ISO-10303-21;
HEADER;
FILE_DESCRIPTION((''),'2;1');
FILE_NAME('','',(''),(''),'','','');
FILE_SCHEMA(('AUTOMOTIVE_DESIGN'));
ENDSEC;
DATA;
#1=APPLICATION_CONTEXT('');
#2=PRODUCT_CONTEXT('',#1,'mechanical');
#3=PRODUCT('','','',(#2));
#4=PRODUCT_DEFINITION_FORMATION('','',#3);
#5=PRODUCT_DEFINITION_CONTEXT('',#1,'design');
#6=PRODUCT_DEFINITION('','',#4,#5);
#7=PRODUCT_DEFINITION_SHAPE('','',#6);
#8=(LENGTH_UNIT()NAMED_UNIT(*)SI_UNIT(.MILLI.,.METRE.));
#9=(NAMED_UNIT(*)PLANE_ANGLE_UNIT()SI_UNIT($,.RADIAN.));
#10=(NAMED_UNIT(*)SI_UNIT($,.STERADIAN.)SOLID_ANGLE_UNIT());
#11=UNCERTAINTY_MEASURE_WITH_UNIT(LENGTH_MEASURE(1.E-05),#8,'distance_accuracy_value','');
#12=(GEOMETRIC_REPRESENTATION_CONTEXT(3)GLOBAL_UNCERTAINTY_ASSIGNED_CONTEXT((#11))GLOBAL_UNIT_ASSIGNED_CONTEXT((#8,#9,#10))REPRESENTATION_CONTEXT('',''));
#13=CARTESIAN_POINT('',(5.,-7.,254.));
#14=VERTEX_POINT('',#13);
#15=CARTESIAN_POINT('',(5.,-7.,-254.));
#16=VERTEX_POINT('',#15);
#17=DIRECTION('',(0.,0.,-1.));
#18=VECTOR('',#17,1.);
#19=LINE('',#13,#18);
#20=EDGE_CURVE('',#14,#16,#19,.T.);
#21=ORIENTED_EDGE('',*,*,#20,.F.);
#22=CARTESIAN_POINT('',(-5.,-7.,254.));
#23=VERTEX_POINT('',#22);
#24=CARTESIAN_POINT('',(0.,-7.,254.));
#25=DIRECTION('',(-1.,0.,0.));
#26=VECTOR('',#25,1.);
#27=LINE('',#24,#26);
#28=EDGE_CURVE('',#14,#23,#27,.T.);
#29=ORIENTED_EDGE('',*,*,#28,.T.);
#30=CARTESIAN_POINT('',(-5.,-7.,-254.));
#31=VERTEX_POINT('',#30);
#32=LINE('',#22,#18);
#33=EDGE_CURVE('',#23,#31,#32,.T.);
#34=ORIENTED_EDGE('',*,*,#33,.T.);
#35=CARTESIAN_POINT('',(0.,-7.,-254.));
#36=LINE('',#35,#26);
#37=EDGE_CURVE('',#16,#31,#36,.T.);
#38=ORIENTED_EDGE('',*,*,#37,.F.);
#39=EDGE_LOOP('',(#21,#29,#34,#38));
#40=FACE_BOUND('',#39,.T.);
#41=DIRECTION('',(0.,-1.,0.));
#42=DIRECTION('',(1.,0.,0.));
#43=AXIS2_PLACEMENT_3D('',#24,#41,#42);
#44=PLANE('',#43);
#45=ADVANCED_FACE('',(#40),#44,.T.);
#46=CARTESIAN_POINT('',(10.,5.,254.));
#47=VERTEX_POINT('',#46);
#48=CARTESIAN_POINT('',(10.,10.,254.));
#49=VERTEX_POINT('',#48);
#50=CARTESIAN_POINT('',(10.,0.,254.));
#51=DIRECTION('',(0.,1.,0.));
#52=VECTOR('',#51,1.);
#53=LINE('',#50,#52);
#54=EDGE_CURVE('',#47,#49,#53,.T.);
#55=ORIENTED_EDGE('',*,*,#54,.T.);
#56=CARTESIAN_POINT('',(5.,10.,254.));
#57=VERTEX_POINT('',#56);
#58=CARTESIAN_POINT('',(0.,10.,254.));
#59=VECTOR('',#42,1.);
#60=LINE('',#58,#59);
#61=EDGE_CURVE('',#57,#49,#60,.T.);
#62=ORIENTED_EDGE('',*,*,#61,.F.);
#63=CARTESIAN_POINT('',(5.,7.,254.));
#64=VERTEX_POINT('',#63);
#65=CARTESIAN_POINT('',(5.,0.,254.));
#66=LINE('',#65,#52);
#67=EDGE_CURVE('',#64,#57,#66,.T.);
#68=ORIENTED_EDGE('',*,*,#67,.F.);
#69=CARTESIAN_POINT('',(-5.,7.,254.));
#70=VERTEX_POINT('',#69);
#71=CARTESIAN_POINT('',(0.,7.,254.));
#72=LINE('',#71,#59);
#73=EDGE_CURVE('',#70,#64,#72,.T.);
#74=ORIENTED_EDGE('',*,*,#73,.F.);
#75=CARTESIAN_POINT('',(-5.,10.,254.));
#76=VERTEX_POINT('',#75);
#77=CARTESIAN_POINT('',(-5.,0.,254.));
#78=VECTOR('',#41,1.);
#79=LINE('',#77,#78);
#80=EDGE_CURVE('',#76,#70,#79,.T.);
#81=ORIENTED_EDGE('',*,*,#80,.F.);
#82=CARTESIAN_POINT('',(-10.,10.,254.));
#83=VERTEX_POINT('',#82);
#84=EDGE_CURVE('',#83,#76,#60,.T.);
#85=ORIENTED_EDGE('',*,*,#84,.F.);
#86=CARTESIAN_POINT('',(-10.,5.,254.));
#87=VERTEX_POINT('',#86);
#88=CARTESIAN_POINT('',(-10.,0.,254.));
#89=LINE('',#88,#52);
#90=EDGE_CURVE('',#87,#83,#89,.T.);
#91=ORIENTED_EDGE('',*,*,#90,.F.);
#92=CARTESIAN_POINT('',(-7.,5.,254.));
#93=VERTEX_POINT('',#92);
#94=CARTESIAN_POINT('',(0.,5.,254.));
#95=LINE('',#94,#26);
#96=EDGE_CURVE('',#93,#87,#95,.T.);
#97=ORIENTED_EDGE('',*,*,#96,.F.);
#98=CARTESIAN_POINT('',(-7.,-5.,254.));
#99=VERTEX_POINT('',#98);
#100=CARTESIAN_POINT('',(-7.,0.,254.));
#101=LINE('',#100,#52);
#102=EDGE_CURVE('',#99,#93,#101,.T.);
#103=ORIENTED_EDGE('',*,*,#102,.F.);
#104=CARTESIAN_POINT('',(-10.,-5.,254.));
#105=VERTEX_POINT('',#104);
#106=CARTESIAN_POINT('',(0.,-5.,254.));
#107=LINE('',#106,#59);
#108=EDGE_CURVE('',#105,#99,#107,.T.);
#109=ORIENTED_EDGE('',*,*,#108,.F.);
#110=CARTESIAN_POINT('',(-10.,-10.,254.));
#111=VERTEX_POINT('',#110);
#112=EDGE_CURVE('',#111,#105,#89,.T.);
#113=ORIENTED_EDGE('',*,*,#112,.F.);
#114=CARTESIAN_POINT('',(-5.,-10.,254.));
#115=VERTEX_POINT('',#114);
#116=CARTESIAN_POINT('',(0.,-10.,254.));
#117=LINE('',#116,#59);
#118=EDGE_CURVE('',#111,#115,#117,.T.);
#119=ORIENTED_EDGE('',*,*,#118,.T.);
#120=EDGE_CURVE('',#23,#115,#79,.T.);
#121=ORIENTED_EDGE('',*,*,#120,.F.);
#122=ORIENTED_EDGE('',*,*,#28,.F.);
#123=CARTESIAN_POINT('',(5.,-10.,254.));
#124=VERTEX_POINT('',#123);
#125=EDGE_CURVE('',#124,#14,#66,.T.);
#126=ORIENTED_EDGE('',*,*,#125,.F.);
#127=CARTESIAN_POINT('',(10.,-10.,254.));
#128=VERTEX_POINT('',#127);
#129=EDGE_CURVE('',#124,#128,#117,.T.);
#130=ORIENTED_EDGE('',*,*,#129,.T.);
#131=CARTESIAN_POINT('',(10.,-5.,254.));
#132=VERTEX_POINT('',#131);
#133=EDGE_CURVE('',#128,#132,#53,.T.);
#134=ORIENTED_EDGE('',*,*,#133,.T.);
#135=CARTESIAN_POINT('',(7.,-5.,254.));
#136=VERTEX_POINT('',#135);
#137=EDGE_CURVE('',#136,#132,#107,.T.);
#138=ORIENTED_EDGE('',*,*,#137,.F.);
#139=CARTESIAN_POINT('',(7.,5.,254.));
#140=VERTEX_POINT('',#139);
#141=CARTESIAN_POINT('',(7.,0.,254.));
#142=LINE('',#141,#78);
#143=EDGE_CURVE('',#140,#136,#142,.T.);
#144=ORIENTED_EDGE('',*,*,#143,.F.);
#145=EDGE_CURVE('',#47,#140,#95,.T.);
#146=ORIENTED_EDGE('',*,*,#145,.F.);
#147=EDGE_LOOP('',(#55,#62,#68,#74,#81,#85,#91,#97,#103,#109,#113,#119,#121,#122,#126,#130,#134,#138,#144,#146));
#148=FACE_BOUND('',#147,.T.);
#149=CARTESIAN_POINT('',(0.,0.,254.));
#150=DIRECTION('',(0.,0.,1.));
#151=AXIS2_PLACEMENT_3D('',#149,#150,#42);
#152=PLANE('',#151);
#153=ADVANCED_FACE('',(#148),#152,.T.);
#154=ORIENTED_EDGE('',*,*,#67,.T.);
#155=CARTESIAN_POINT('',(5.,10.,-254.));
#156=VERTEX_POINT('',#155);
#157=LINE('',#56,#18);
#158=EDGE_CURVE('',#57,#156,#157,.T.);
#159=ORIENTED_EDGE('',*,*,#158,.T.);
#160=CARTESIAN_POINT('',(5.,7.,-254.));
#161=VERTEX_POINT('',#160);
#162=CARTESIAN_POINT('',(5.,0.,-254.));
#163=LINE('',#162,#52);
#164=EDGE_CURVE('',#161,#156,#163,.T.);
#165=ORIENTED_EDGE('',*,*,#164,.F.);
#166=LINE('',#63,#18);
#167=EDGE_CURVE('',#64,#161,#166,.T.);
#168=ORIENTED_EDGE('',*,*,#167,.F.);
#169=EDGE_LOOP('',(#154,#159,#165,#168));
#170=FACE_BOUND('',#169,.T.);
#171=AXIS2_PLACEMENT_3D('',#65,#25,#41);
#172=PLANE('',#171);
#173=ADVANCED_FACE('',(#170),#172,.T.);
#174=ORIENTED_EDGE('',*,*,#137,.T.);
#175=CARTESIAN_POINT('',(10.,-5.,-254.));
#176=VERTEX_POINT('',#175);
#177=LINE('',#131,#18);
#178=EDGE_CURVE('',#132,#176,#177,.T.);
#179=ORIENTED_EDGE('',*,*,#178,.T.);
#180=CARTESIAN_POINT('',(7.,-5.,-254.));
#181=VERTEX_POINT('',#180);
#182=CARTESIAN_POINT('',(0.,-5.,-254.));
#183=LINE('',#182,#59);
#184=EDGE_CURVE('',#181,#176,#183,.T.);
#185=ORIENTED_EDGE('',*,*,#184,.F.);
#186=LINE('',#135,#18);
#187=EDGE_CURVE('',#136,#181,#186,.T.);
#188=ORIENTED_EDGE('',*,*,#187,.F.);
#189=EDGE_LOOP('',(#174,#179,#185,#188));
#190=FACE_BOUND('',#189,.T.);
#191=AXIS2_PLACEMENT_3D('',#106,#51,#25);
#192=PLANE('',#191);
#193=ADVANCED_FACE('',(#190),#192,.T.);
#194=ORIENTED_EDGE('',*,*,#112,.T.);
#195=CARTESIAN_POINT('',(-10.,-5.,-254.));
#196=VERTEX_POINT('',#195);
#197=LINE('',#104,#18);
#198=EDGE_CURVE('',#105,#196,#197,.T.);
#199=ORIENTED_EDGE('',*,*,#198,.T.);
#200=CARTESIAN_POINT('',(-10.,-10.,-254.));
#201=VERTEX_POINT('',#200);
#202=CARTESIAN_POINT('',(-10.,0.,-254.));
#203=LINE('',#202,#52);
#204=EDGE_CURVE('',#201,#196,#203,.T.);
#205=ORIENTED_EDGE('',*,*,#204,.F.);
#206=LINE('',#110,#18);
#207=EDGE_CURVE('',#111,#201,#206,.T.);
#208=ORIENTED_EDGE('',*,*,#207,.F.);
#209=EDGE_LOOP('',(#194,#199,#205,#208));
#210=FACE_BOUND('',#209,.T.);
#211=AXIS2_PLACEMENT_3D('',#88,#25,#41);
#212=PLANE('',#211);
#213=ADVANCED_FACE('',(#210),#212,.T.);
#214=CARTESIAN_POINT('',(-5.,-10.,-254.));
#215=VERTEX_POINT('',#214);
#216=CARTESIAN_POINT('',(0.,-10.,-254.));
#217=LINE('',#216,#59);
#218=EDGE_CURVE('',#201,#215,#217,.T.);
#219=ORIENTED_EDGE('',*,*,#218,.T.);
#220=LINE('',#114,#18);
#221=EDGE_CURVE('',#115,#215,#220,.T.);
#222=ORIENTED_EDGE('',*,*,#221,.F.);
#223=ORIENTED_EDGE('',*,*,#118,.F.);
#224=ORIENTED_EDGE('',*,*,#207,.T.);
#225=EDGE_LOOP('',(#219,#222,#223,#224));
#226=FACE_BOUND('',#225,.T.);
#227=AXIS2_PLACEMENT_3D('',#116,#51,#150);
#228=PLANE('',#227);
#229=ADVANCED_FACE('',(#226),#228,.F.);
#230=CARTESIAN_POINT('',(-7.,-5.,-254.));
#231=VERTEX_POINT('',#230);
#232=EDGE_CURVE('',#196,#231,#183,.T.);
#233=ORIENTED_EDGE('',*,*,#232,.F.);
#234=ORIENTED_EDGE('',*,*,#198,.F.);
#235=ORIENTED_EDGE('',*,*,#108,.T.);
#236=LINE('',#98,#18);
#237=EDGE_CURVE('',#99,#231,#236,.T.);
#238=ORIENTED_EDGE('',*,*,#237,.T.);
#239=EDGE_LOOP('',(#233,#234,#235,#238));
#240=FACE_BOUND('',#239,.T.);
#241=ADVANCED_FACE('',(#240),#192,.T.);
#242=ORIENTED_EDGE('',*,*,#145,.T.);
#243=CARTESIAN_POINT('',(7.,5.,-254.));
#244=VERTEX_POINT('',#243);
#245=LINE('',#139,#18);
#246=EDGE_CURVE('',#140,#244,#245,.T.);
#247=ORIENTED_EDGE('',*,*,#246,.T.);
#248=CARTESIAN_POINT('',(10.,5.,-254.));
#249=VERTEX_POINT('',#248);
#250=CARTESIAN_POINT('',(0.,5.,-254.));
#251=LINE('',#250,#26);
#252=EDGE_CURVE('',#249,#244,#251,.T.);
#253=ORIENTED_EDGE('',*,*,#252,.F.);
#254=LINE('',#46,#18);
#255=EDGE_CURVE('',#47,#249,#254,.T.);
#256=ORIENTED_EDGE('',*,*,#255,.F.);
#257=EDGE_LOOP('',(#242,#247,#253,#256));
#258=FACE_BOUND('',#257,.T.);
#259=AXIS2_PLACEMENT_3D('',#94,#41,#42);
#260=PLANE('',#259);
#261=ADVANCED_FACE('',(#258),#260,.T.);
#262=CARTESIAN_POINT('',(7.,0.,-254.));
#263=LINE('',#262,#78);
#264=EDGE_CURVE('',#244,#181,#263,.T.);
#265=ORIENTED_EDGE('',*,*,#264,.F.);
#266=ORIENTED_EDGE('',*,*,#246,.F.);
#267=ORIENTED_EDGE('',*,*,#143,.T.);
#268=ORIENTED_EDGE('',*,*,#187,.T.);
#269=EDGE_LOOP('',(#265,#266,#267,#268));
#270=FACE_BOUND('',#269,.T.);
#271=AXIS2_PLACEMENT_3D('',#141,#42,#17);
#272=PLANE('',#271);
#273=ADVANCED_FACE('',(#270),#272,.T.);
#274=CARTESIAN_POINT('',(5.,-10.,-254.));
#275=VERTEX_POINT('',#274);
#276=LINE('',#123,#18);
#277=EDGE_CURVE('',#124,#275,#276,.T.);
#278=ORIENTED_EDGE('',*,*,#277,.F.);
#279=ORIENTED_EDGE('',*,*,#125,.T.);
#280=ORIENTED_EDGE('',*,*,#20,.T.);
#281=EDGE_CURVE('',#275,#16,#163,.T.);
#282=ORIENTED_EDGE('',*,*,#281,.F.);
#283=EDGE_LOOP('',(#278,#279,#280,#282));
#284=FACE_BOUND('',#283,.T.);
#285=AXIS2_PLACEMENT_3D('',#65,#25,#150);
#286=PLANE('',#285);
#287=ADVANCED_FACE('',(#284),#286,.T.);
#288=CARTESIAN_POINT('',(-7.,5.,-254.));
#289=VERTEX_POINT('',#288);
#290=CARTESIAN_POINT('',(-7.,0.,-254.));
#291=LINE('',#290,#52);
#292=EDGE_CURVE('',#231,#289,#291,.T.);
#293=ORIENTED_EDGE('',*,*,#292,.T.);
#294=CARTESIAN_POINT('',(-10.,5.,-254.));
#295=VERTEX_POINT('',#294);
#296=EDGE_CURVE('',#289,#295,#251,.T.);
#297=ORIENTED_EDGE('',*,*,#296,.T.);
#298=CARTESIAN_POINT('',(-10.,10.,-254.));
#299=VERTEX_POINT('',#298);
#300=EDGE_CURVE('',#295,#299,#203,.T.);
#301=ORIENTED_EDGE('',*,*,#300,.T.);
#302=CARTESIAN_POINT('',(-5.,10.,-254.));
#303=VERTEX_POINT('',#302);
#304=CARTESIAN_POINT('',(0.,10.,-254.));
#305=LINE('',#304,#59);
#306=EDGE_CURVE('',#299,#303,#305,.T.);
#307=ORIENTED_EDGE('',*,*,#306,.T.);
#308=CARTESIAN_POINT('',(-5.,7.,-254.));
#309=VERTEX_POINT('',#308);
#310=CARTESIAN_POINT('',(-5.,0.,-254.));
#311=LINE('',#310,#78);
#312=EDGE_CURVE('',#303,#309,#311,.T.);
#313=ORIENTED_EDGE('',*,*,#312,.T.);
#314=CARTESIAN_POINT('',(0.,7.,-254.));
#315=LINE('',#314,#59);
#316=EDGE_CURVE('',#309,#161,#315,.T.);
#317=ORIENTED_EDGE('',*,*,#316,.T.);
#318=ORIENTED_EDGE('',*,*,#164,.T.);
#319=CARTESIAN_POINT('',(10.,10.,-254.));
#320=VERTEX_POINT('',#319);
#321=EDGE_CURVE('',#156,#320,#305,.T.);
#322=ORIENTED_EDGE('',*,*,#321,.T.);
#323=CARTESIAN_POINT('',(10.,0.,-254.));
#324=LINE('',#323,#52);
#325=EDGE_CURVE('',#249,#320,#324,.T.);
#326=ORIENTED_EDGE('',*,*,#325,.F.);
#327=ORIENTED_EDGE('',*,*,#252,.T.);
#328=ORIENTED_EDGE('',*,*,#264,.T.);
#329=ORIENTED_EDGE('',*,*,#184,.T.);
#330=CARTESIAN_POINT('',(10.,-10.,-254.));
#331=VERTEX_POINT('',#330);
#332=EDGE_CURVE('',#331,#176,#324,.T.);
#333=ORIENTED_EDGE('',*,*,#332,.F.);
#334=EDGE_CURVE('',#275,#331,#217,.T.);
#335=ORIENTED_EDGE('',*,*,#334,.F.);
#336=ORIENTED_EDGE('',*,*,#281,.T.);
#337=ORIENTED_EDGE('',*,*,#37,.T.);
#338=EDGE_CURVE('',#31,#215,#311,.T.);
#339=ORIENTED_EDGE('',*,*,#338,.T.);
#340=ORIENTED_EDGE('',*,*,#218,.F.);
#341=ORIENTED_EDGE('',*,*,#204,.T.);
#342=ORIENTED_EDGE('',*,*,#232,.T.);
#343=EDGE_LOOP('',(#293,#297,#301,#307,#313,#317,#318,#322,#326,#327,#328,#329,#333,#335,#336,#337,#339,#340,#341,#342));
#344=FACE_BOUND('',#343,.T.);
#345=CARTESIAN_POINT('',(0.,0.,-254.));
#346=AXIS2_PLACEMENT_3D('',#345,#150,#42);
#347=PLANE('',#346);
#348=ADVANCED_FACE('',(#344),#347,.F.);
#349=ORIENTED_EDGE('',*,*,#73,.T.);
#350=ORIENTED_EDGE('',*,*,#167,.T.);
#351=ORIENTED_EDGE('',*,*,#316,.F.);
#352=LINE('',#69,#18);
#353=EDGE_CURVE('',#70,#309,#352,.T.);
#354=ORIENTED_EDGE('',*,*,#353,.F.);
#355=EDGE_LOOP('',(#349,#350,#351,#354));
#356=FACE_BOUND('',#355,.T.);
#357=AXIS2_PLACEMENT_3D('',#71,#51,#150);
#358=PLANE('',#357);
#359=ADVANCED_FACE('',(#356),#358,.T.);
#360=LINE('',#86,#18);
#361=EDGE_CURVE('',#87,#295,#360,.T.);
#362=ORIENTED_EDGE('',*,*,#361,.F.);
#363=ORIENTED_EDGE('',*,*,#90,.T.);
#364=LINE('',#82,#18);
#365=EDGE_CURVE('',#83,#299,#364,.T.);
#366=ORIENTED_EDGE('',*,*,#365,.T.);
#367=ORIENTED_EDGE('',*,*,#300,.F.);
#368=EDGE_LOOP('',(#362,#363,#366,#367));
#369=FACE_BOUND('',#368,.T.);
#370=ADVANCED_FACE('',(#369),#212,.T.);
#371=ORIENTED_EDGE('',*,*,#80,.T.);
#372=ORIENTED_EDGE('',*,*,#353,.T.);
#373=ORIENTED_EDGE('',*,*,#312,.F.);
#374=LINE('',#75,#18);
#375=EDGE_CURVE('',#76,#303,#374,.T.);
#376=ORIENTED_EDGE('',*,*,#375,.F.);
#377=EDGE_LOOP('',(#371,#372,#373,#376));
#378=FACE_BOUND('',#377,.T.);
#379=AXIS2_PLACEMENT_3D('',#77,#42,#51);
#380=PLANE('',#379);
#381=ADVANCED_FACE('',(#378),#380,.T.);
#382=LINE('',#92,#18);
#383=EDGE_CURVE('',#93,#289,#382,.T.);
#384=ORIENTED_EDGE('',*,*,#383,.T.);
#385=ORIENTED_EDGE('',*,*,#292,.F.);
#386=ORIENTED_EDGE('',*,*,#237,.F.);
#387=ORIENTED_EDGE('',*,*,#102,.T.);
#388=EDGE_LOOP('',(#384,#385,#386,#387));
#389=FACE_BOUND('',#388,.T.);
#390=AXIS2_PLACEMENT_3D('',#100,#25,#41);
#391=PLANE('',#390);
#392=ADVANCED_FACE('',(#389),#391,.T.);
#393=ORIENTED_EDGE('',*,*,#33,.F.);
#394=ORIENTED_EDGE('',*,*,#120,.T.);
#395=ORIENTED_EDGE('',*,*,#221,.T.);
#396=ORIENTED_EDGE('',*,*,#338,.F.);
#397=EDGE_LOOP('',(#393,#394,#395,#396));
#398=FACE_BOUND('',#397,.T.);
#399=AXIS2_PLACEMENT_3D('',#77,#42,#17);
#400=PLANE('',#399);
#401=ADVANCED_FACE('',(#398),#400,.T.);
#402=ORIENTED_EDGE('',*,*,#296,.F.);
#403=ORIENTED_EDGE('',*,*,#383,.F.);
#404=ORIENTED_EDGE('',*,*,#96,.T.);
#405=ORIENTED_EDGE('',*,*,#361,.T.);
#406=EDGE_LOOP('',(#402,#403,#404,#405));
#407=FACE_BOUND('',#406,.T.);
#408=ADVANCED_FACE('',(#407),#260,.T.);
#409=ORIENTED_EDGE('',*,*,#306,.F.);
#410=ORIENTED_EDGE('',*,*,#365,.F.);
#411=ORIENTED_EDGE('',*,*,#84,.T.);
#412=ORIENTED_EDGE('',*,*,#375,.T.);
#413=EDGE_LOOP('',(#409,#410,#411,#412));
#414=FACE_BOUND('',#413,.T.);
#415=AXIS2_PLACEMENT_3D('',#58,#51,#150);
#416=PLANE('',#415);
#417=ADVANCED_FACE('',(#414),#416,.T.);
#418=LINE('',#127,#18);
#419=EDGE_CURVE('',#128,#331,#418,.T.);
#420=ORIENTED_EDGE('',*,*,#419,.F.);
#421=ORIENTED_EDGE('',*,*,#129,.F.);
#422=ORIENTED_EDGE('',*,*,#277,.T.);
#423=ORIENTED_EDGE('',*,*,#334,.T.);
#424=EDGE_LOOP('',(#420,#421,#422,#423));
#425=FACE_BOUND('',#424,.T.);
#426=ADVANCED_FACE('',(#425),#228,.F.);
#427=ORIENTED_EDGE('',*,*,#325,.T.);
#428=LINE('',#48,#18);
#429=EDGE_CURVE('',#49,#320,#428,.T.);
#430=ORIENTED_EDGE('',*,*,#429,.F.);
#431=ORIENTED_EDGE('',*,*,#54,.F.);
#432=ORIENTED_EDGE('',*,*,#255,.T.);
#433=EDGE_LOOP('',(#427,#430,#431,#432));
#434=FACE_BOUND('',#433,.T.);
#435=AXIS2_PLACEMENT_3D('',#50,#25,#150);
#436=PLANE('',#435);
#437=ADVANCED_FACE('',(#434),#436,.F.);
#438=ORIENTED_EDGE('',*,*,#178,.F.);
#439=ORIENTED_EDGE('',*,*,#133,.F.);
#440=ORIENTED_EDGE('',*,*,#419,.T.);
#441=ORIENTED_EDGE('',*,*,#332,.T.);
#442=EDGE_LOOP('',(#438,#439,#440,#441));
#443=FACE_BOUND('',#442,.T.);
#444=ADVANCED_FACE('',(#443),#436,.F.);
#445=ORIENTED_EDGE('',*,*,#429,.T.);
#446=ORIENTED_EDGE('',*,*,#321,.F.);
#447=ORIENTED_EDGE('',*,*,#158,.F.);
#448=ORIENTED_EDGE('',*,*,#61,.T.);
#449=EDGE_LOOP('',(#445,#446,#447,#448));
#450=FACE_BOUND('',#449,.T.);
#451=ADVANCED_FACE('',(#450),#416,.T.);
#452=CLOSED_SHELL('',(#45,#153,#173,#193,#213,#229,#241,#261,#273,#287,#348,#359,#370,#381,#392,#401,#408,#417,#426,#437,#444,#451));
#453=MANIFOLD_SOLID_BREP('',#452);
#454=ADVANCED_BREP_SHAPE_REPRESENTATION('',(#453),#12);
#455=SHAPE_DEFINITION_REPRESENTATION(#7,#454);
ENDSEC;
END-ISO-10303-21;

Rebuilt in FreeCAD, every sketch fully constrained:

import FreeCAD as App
import Part
import Sketcher

V = App.Vector
Q = App.Units.Quantity


def add_polygon(sketch, points):
    """Adds a closed chain of lines whose ends are joined by coincident constraints."""
    first, n = sketch.GeometryCount, len(points)
    for a, b in zip(points, points[1:] + points[:1]):
        sketch.addGeometry(Part.LineSegment(App.Vector(*a, 0), App.Vector(*b, 0)), False)
    for i in range(n):
        sketch.addConstraint(Sketcher.Constraint("Coincident", first + i, 2, first + (i + 1) % n, 1))

doc = App.newDocument("Part")
body = doc.addObject("PartDesign::Body", "Body")

sketch1 = body.newObject("Sketcher::SketchObject", "Sketch")
sketch1.AttachmentSupport = (doc.getObject("XY_Plane"), [""])
sketch1.MapMode = "FlatFace"
add_polygon(sketch1, [(-5, 7), (-5, 10), (-10, 10), (-10, 5), (-7, 5), (-7, -5), (-10, -5), (-10, -10), (-5, -10), (-5, -7), (5, -7), (5, -10), (10, -10), (10, -5), (7, -5), (7, 5), (10, 5), (10, 10), (5, 10), (5, 7)])
sketch1.addConstraint([
    Sketcher.Constraint("Vertical", 0),
    Sketcher.Constraint("Horizontal", 1),
    Sketcher.Constraint("Vertical", 2),
    Sketcher.Constraint("Horizontal", 3),
    Sketcher.Constraint("Vertical", 4),
    Sketcher.Constraint("Horizontal", 5),
    Sketcher.Constraint("Vertical", 6),
    Sketcher.Constraint("Horizontal", 7),
    Sketcher.Constraint("Vertical", 8),
    Sketcher.Constraint("Horizontal", 9),
    Sketcher.Constraint("Vertical", 10),
    Sketcher.Constraint("Horizontal", 11),
    Sketcher.Constraint("Vertical", 12),
    Sketcher.Constraint("Horizontal", 13),
    Sketcher.Constraint("Vertical", 14),
    Sketcher.Constraint("Horizontal", 15),
    Sketcher.Constraint("Vertical", 16),
    Sketcher.Constraint("Horizontal", 17),
    Sketcher.Constraint("Vertical", 18),
    Sketcher.Constraint("Horizontal", 19),
    Sketcher.Constraint("Symmetric", 0, 2, 10, 2, -1, 1),
    Sketcher.Constraint("Symmetric", 2, 2, 12, 2, -1, 1),
    Sketcher.Constraint("Symmetric", 4, 2, 14, 2, -1, 1),
    Sketcher.Constraint("Symmetric", 6, 2, 16, 2, -1, 1),
    Sketcher.Constraint("Symmetric", 8, 2, 18, 2, -1, 1),
    Sketcher.Constraint("Symmetric", 7, 2, 10, 2, -2),
    Sketcher.Constraint("Symmetric", 5, 2, 12, 2, -2),
    Sketcher.Constraint("Equal", 15, 0),
    Sketcher.Constraint("Equal", 17, 2),
    Sketcher.Constraint("Equal", 19, 4),
    Sketcher.Constraint("DistanceX", 1, 2, 1, 1, Q("5 mm")),
    Sketcher.Constraint("DistanceX", 3, 1, 3, 2, Q("3 mm")),
    Sketcher.Constraint("DistanceX", 9, 1, 9, 2, Q("10 mm")),
])
pad1 = body.newObject("PartDesign::Pad", "Pad")
pad1.Profile = sketch1
pad1.Length = 508
pad1.Midplane = True

doc.recompute()
